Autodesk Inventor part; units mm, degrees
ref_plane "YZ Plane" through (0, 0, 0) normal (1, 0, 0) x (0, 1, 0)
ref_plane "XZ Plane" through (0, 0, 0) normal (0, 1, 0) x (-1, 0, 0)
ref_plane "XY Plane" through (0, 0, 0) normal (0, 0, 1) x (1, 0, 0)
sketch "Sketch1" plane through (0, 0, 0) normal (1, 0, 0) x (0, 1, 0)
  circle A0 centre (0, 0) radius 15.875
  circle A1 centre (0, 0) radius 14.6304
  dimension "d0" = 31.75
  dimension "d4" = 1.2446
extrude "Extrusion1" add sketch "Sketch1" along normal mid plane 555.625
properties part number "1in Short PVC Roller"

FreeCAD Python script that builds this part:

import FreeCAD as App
import Part
import Sketcher

V = App.Vector
Q = App.Units.Quantity

doc = App.newDocument("Part")
params = doc.addObject("Spreadsheet::Sheet", "Params")
for row, (alias, value) in enumerate([
    ("sketch1_diameter", "1.25 in"),
    ("sketch1_diameter2", "1.152 in"),
    ("pad1_length", "21.875 in"),
], start=1):
    params.set(f"A{row}", alias)
    params.set(f"B{row}", "=" + value)
    params.setAlias(f"B{row}", alias)

body = doc.addObject("PartDesign::Body", "Body")

# Sketch on YZ plane
sketch1 = body.newObject("Sketcher::SketchObject", "Sketch")
sketch1.AttachmentSupport = (doc.getObject("YZ_Plane"), [""])
sketch1.MapMode = "FlatFace"
sketch1.addGeometry(Part.Circle(V(0, 0, 0), V(0, 0, 1), 15.875), False)
sketch1.addGeometry(Part.Circle(V(0, 0, 0), V(0, 0, 1), 14.6304), False)
sketch1.addConstraint(Sketcher.Constraint("Coincident", 0, 3, -1, 1))
sketch1.addConstraint(Sketcher.Constraint("Coincident", 1, 3, -1, 1))
sketch1.addConstraint(Sketcher.Constraint("Diameter", 0, Q("1.25 in")))
sketch1.addConstraint(Sketcher.Constraint("Diameter", 1, Q("1.152 in")))
sketch1.setExpression("Constraints[2]", "Params.sketch1_diameter")
sketch1.setExpression("Constraints[3]", "Params.sketch1_diameter2")
pad1 = body.newObject("PartDesign::Pad", "Pad")
pad1.Profile = sketch1
pad1.setExpression("Length", "Params.pad1_length")
pad1.Midplane = True

doc.recompute()
